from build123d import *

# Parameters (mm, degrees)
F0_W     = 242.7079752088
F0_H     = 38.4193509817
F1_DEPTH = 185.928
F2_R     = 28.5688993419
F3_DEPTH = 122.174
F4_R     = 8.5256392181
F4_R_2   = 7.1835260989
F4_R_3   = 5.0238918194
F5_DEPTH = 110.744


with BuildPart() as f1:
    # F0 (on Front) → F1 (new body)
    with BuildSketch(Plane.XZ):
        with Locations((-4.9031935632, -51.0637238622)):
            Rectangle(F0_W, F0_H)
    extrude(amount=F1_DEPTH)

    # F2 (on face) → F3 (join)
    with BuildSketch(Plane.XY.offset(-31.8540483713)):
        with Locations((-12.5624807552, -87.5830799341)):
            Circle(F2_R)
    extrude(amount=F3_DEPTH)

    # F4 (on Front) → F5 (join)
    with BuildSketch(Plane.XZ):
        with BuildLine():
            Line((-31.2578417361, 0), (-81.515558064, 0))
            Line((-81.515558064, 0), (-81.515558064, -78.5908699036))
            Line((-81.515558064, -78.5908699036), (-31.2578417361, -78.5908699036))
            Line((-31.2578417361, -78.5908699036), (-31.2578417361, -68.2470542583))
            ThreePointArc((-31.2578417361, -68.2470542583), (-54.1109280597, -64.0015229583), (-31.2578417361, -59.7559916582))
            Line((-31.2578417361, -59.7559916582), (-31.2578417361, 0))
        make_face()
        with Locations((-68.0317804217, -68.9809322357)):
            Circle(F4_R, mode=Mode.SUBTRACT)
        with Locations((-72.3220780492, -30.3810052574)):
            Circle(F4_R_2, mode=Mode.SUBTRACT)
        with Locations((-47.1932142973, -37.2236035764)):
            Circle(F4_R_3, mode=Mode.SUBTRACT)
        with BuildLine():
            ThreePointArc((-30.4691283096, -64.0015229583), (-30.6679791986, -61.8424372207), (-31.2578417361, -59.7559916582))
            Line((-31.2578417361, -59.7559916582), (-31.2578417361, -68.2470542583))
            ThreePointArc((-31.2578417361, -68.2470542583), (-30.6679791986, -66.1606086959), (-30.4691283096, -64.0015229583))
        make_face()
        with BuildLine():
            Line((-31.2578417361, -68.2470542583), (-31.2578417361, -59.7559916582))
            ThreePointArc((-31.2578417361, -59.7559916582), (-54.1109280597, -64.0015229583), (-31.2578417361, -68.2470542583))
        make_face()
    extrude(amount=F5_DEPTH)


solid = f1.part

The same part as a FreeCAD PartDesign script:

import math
import FreeCAD as App
import Part
import Sketcher

doc = App.newDocument("Part")
params = doc.addObject("Spreadsheet::Sheet", "Params")
for row, (alias, value) in enumerate([
    ("pad1_length", "7.32 in"),
    ("pad2_length", "4.81 in"),
    ("pad3_length", "4.36 in"),
], start=1):
    params.set(f"A{row}", alias)
    params.set(f"B{row}", "=" + value)
    params.setAlias(f"B{row}", alias)

body = doc.addObject("PartDesign::Body", "Body")

sketch1 = body.newObject("Sketcher::SketchObject", "Sketch")
sketch1.AttachmentSupport = (doc.getObject("XZ_Plane"), [""])
sketch1.MapMode = "FlatFace"
sketch1.addGeometry([
    Part.LineSegment(App.Vector(-126, -32, 0), App.Vector(-126, -70, 0)),
    Part.LineSegment(App.Vector(-126, -70, 0), App.Vector(116, -70, 0)),
    Part.LineSegment(App.Vector(116, -70, 0), App.Vector(116, -32, 0)),
    Part.LineSegment(App.Vector(116, -32, 0), App.Vector(-126, -32, 0)),
], False)
sketch1.addConstraint([
    Sketcher.Constraint("Coincident", 0, 2, 1, 1),
    Sketcher.Constraint("Coincident", 1, 2, 2, 1),
    Sketcher.Constraint("Coincident", 2, 2, 3, 1),
    Sketcher.Constraint("Coincident", 3, 2, 0, 1),
    Sketcher.Constraint("Vertical", 0),
    Sketcher.Constraint("Horizontal", 1),
    Sketcher.Constraint("Vertical", 2),
    Sketcher.Constraint("Horizontal", 3),
    Sketcher.Constraint("DistanceY", 0, 2, 0, 1, 38.419351),
    Sketcher.Constraint("DistanceY", 0, 2, -1, 1, 70.273399),
    Sketcher.Constraint("DistanceX", 1, 1, 1, 2, 242.707975),
    Sketcher.Constraint("DistanceX", 0, 2, -1, 1, 126.257181),
])
pad1 = body.newObject("PartDesign::Pad", "Pad")
pad1.Profile = sketch1
pad1.setExpression("Length", "Params.pad1_length")

sketch2 = body.newObject("Sketcher::SketchObject", "Sketch001")
sketch2.AttachmentSupport = (doc.getObject("XY_Plane"), [""])
sketch2.MapMode = "FlatFace"
sketch2.AttachmentOffset = App.Placement(App.Vector(0, 0, -31.854048), App.Rotation())
sketch2.addGeometry(Part.Circle(App.Vector(-13, -88, 0), App.Vector(0, 0, 1), 29), False)
sketch2.addConstraint([
    Sketcher.Constraint("Diameter", 0, 57.137799),
    Sketcher.Constraint("DistanceX", 0, 3, -1, 1, 12.562481),
    Sketcher.Constraint("DistanceY", 0, 3, -1, 1, 87.58308),
])
pad2 = body.newObject("PartDesign::Pad", "Pad001")
pad2.Profile = sketch2
pad2.setExpression("Length", "Params.pad2_length")

sketch3 = body.newObject("Sketcher::SketchObject", "Sketch002")
sketch3.AttachmentSupport = (doc.getObject("XZ_Plane"), [""])
sketch3.MapMode = "FlatFace"
sketch3.addGeometry([
    Part.LineSegment(App.Vector(-31.3, 0, 0), App.Vector(-81.5, 0, 0)),
    Part.LineSegment(App.Vector(-81.5, 0, 0), App.Vector(-81.5, -78.6, 0)),
    Part.LineSegment(App.Vector(-81.5, -78.6, 0), App.Vector(-31.3, -78.6, 0)),
    Part.LineSegment(App.Vector(-31.3, -78.6, 0), App.Vector(-31.3, -68.2, 0)),
    Part.ArcOfCircle(Part.Circle(App.Vector(-42.3, -64, 0), App.Vector(0, 0, 1), 11.8), math.radians(-21), math.radians(0)),
    Part.ArcOfCircle(Part.Circle(App.Vector(-42.3, -64, 0), App.Vector(0, 0, 1), 11.8), math.radians(0), math.radians(21)),
    Part.LineSegment(App.Vector(-31.3, -59.8, 0), App.Vector(-31.3, 0, 0)),
    Part.Circle(App.Vector(-68, -69, 0), App.Vector(0, 0, 1), 8.5),
    Part.Circle(App.Vector(-72.3, -30.4, 0), App.Vector(0, 0, 1), 7.2),
    Part.Circle(App.Vector(-47.2, -37.2, 0), App.Vector(0, 0, 1), 5),
], False)
sketch3.addConstraint([
    Sketcher.Constraint("Coincident", 0, 2, 1, 1),
    Sketcher.Constraint("Coincident", 1, 2, 2, 1),
    Sketcher.Constraint("Coincident", 2, 2, 3, 1),
    Sketcher.Constraint("Coincident", 3, 2, 4, 1),
    Sketcher.Constraint("Tangent", 4, 2, 5, 1),
    Sketcher.Constraint("Coincident", 5, 2, 6, 1),
    Sketcher.Constraint("Coincident", 6, 2, 0, 1),
    Sketcher.Constraint("Horizontal", 0),
    Sketcher.Constraint("Vertical", 1),
    Sketcher.Constraint("Horizontal", 2),
    Sketcher.Constraint("Vertical", 3),
    Sketcher.Constraint("Vertical", 6),
    Sketcher.Constraint("Equal", 4, 5),
    Sketcher.Constraint("PointOnObject", 0, 2, -1),
    Sketcher.Constraint("Horizontal", 5, 3, 4, 2),
    Sketcher.Constraint("Vertical", 3, 2, 5, 2),
    Sketcher.Constraint("Radius", 4, 11.8209),
    Sketcher.Constraint("Diameter", 7, 17.051278),
    Sketcher.Constraint("Diameter", 8, 14.367052),
    Sketcher.Constraint("Diameter", 9, 10.047784),
    Sketcher.Constraint("DistanceY", 1, 2, 1, 1, 78.59087),
    Sketcher.Constraint("DistanceY", 6, 1, 6, 2, 59.755992),
    Sketcher.Constraint("DistanceY", 9, 3, 8, 3, 6.842598),
    Sketcher.Constraint("DistanceX", 0, 2, 0, 1, 50.257716),
    Sketcher.Constraint("DistanceY", 3, 1, 3, 2, 10.343816),
    Sketcher.Constraint("DistanceX", 4, 3, -1, 1, 42.290028),
    Sketcher.Constraint("DistanceX", 7, 3, -1, 1, 68.03178),
    Sketcher.Constraint("DistanceX", 8, 3, -1, 1, 72.322078),
    Sketcher.Constraint("DistanceY", 7, 3, 5, 3, 4.979409),
    Sketcher.Constraint("DistanceY", 5, 3, 9, 3, 26.777919),
    Sketcher.Constraint("DistanceX", 9, 3, -1, 1, 47.193214),
])
pad3 = body.newObject("PartDesign::Pad", "Pad002")
pad3.Profile = sketch3
pad3.setExpression("Length", "Params.pad3_length")

doc.recompute()
